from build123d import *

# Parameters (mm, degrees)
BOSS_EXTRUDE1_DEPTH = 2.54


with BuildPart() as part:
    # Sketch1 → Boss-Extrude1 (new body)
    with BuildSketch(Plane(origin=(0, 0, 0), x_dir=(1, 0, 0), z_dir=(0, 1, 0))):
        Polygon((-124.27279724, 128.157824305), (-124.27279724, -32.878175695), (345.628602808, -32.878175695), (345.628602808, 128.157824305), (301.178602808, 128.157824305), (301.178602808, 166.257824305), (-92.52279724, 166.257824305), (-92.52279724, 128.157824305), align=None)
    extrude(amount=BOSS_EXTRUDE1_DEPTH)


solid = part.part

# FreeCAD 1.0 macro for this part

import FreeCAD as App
import Part
import Sketcher
Q = App.Units.Quantity

doc = App.newDocument("Part")
body = doc.addObject("PartDesign::Body", "Body")

# Sketch on XZ plane
sketch1 = body.newObject("Sketcher::SketchObject", "Sketch")
sketch1.AttachmentSupport = (doc.getObject("XZ_Plane"), [""])
sketch1.MapMode = "FlatFace"
sketch1.addGeometry(Part.LineSegment(App.Vector(-124.272797, -128.157824, 0), App.Vector(-124.272797, 32.878176, 0)), False)
sketch1.addGeometry(Part.LineSegment(App.Vector(-124.272797, 32.878176, 0), App.Vector(345.628603, 32.878176, 0)), False)
sketch1.addGeometry(Part.LineSegment(App.Vector(345.628603, 32.878176, 0), App.Vector(345.628603, -128.157824, 0)), False)
sketch1.addGeometry(Part.LineSegment(App.Vector(345.628603, -128.157824, 0), App.Vector(301.178603, -128.157824, 0)), False)
sketch1.addGeometry(Part.LineSegment(App.Vector(301.178603, -128.157824, 0), App.Vector(301.178603, -166.257824, 0)), False)
sketch1.addGeometry(Part.LineSegment(App.Vector(301.178603, -166.257824, 0), App.Vector(-92.522797, -166.257824, 0)), False)
sketch1.addGeometry(Part.LineSegment(App.Vector(-92.522797, -166.257824, 0), App.Vector(-92.522797, -128.157824, 0)), False)
sketch1.addGeometry(Part.LineSegment(App.Vector(-92.522797, -128.157824, 0), App.Vector(-124.272797, -128.157824, 0)), False)
sketch1.addConstraint(Sketcher.Constraint("Coincident", 0, 2, 1, 1))
sketch1.addConstraint(Sketcher.Constraint("Coincident", 1, 2, 2, 1))
sketch1.addConstraint(Sketcher.Constraint("Coincident", 2, 2, 3, 1))
sketch1.addConstraint(Sketcher.Constraint("Coincident", 3, 2, 4, 1))
sketch1.addConstraint(Sketcher.Constraint("Coincident", 4, 2, 5, 1))
sketch1.addConstraint(Sketcher.Constraint("Coincident", 5, 2, 6, 1))
sketch1.addConstraint(Sketcher.Constraint("Coincident", 6, 2, 7, 1))
sketch1.addConstraint(Sketcher.Constraint("Coincident", 7, 2, 0, 1))
sketch1.addConstraint(Sketcher.Constraint("Vertical", 0))
sketch1.addConstraint(Sketcher.Constraint("Horizontal", 1))
sketch1.addConstraint(Sketcher.Constraint("Vertical", 2))
sketch1.addConstraint(Sketcher.Constraint("Horizontal", 3))
sketch1.addConstraint(Sketcher.Constraint("Vertical", 4))
sketch1.addConstraint(Sketcher.Constraint("Horizontal", 5))
sketch1.addConstraint(Sketcher.Constraint("Vertical", 6))
sketch1.addConstraint(Sketcher.Constraint("Horizontal", 7))
sketch1.addConstraint(Sketcher.Constraint("Horizontal", 3, 2, 6, 2))
sketch1.addConstraint(Sketcher.Constraint("DistanceY", 4, 2, 4, 1, Q("1.5 in")))
sketch1.addConstraint(Sketcher.Constraint("DistanceX", 3, 2, 3, 1, Q("1.75 in")))
sketch1.addConstraint(Sketcher.Constraint("DistanceX", 7, 2, 7, 1, Q("1.25 in")))
sketch1.addConstraint(Sketcher.Constraint("DistanceY", 0, 1, 0, 2, Q("6.34 in")))
sketch1.addConstraint(Sketcher.Constraint("DistanceX", 1, 1, 1, 2, 469.9014))
sketch1.addConstraint(Sketcher.Constraint("DistanceX", 0, 2, -1, 1, 124.272797))
sketch1.addConstraint(Sketcher.Constraint("DistanceY", -1, 1, 0, 2, 32.878176))
pad1 = body.newObject("PartDesign::Pad", "Pad")
pad1.Profile = sketch1
pad1.Length = Q("0.1 in")
pad1.Reversed = True

doc.recompute()
